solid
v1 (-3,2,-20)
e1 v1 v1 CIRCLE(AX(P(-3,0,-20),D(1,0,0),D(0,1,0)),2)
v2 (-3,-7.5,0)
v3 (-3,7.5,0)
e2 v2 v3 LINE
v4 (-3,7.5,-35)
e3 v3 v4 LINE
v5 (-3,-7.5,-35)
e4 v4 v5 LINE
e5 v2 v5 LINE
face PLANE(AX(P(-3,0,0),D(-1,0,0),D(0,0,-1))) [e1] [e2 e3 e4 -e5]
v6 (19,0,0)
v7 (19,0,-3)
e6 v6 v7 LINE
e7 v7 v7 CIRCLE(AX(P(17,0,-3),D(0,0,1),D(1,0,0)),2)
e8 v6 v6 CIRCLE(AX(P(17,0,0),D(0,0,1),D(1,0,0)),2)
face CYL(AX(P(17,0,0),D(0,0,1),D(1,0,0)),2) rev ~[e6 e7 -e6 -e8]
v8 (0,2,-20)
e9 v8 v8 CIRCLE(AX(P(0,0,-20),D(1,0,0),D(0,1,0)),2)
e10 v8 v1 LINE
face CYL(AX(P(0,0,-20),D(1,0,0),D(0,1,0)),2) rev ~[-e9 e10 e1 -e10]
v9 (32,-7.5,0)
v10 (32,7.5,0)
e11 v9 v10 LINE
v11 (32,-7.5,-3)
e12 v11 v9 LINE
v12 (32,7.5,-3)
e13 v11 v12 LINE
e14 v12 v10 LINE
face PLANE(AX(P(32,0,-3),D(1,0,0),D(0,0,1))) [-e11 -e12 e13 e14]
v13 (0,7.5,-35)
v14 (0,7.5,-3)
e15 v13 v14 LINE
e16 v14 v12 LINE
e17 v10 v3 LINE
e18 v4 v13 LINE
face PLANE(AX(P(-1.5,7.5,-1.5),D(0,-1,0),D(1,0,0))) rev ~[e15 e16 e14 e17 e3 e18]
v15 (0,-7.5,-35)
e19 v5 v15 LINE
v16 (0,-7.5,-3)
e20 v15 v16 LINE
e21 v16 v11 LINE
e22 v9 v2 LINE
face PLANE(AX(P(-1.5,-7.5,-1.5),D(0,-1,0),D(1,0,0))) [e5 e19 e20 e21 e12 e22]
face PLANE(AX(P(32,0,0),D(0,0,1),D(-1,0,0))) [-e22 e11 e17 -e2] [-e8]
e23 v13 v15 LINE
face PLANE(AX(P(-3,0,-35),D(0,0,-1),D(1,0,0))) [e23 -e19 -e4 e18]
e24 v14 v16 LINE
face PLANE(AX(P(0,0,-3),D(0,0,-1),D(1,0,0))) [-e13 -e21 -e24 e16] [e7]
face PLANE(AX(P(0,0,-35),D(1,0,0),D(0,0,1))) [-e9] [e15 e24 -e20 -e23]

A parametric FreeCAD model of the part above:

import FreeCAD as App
import Part
import Sketcher
from FreeCAD import Vector
Q = App.Units.Quantity


def add_polygon(sketch, points):
    """Adds a closed chain of lines whose ends are joined by coincident constraints."""
    first, n = sketch.GeometryCount, len(points)
    for a, b in zip(points, points[1:] + points[:1]):
        sketch.addGeometry(Part.LineSegment(App.Vector(*a, 0), App.Vector(*b, 0)), False)
    for i in range(n):
        sketch.addConstraint(Sketcher.Constraint("Coincident", first + i, 2, first + (i + 1) % n, 1))

doc = App.newDocument("Part")
body = doc.addObject("PartDesign::Body", "Body")

sketch1 = body.newObject("Sketcher::SketchObject", "Sketch")
sketch1.AttachmentSupport = (doc.getObject("XZ_Plane"), [""])
sketch1.MapMode = "FlatFace"
add_polygon(sketch1, [(-3, 0), (-3, -35), (0, -35), (0, -3), (32, -3), (32, 0)])
sketch1.addConstraint(Sketcher.Constraint("Vertical", 0))
sketch1.addConstraint(Sketcher.Constraint("Horizontal", 1))
sketch1.addConstraint(Sketcher.Constraint("Vertical", 2))
sketch1.addConstraint(Sketcher.Constraint("Horizontal", 3))
sketch1.addConstraint(Sketcher.Constraint("Vertical", 4))
sketch1.addConstraint(Sketcher.Constraint("Horizontal", 5))
sketch1.addConstraint(Sketcher.Constraint("PointOnObject", 1, 2, -2))
sketch1.addConstraint(Sketcher.Constraint("PointOnObject", 4, 2, -1))
sketch1.addConstraint(Sketcher.Constraint("Equal", 5, 0))
sketch1.addConstraint(Sketcher.Constraint("Equal", 3, 2))
sketch1.addConstraint(Sketcher.Constraint("DistanceX", 1, 1, 1, 2, Q("3 mm")))
sketch1.addConstraint(Sketcher.Constraint("DistanceX", 3, 1, 3, 2, Q("32 mm")))
pad1 = body.newObject("PartDesign::Pad", "Pad")
pad1.Profile = sketch1
pad1.Length = 15
pad1.Midplane = True

sketch2 = body.newObject("Sketcher::SketchObject", "Sketch001")
sketch2.AttachmentSupport = (doc.getObject("YZ_Plane"), [""])
sketch2.MapMode = "FlatFace"
sketch2.addGeometry(Part.Circle(Vector(0, -20, 0), Vector(0, 0, 1), 2), False)
sketch2.addConstraint(Sketcher.Constraint("PointOnObject", 0, 3, -2))
sketch2.addConstraint(Sketcher.Constraint("Diameter", 0, Q("4 mm")))
sketch2.addConstraint(Sketcher.Constraint("DistanceY", 0, 3, -1, 1, Q("20 mm")))
pocket1 = body.newObject("PartDesign::Pocket", "Pocket")
pocket1.Profile = sketch2
pocket1.Type = "ThroughAll"

sketch3 = body.newObject("Sketcher::SketchObject", "Sketch002")
sketch3.AttachmentSupport = (doc.getObject("XY_Plane"), [""])
sketch3.MapMode = "FlatFace"
sketch3.addGeometry(Part.Circle(Vector(17, 0, 0), Vector(0, 0, 1), 2), False)
sketch3.addConstraint(Sketcher.Constraint("PointOnObject", 0, 3, -1))
sketch3.addConstraint(Sketcher.Constraint("Diameter", 0, Q("4 mm")))
sketch3.addConstraint(Sketcher.Constraint("DistanceX", -1, 1, 0, 3, Q("17 mm")))
pocket2 = body.newObject("PartDesign::Pocket", "Pocket001")
pocket2.Profile = sketch3
pocket2.Type = "ThroughAll"

doc.recompute()
